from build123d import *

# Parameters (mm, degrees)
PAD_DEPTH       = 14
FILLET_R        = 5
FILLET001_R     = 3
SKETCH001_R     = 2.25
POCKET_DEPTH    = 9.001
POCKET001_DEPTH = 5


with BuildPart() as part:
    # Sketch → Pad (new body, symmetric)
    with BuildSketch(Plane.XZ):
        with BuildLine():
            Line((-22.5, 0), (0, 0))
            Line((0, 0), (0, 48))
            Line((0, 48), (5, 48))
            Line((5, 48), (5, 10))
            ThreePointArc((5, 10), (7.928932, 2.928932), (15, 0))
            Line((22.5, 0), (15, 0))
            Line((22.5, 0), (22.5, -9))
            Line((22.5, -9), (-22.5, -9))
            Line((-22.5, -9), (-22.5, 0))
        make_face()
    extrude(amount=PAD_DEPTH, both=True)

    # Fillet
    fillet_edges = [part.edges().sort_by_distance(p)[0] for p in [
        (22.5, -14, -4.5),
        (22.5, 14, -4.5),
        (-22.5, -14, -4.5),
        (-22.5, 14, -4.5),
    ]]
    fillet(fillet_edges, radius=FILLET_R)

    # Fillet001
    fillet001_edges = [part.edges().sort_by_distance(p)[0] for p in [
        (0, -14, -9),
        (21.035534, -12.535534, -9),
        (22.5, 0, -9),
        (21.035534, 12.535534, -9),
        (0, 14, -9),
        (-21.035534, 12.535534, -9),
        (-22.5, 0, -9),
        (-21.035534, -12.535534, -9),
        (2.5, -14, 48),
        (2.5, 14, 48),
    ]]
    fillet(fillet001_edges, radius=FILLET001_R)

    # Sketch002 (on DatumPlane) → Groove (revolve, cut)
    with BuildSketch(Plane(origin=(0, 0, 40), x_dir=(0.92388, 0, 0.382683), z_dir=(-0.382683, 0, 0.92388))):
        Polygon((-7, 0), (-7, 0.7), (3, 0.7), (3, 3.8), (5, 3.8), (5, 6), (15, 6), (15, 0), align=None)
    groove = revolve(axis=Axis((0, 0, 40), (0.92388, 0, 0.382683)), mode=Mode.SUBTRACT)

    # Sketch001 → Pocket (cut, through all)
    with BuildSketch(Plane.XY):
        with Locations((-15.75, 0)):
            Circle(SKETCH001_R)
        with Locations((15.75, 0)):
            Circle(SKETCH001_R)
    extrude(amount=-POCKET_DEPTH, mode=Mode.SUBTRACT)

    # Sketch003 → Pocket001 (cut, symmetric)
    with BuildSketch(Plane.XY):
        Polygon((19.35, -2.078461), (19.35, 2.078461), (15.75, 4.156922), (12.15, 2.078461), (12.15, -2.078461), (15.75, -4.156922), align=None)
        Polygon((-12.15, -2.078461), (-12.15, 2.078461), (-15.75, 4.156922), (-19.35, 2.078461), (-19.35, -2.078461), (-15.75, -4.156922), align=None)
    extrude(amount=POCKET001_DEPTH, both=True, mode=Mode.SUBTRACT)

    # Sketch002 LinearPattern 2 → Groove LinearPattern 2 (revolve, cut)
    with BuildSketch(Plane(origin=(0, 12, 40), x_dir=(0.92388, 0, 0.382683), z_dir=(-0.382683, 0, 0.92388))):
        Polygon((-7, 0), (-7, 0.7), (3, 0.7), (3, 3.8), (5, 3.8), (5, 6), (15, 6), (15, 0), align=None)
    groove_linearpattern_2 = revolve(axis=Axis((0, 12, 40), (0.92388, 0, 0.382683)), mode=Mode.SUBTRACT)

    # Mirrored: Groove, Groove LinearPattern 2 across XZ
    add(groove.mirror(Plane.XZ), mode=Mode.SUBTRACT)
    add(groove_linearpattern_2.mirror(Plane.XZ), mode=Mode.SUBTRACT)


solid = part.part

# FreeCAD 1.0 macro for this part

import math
import FreeCAD as App
import Part
import Sketcher
Q = App.Units.Quantity


def edges_at(feature, points):
    """Names of the edges that pass closest to the given points."""
    edges = feature.Shape.Edges
    near = lambda p: min(range(len(edges)), key=lambda i: edges[i].distToShape(Part.Vertex(*p))[0])
    return sorted({f"Edge{near(p) + 1}" for p in points})


def add_polygon(sketch, points):
    """Adds a closed chain of lines whose ends are joined by coincident constraints."""
    first, n = sketch.GeometryCount, len(points)
    for a, b in zip(points, points[1:] + points[:1]):
        sketch.addGeometry(Part.LineSegment(App.Vector(*a, 0), App.Vector(*b, 0)), False)
    for i in range(n):
        sketch.addConstraint(Sketcher.Constraint("Coincident", first + i, 2, first + (i + 1) % n, 1))

doc = App.newDocument("Part")
params = doc.addObject("Spreadsheet::Sheet", "Params")
for row, (alias, value) in enumerate([
    ("sketch1_radius", "9.999999 mm"),
    ("sketch1_width", "45 mm"),
    ("sketch1_width2", "5 mm"),
    ("sketch1_height", "9 mm"),
    ("sketch1_height2", "38 mm"),
    ("pad1_length", "28 mm"),
    ("fillet_radius", "5 mm"),
    ("fillet2_radius", "3 mm"),
    ("sketch2_width", "22 mm"),
    ("sketch2_width2", "10 mm"),
    ("sketch2_height", "6 mm"),
    ("sketch2_height2", "0.7 mm"),
    ("sketch2_height3", "2.2 mm"),
    ("groove_angle", "360 deg"),
    ("sketch3_diameter", "4.5 mm"),
    ("pocket2_length", "10 mm"),
    ("sketch5_width", "22 mm"),
    ("sketch5_width2", "10 mm"),
    ("sketch5_height", "6 mm"),
    ("sketch5_height2", "0.7 mm"),
    ("sketch5_height3", "2.2 mm"),
    ("groove2_angle", "360 deg"),
], start=1):
    params.set(f"A{row}", alias)
    params.set(f"B{row}", "=" + value)
    params.setAlias(f"B{row}", alias)

body = doc.addObject("PartDesign::Body", "Body")

# Sketch on XZ plane
sketch1 = body.newObject("Sketcher::SketchObject", "Sketch")
sketch1.AttachmentSupport = (doc.getObject("XZ_Plane"), [""])
sketch1.MapMode = "FlatFace"
sketch1.addGeometry([
    Part.LineSegment(App.Vector(0, 0, 0), App.Vector(-22, 0, 0)),  # 0
    Part.LineSegment(App.Vector(-22, 0, 0), App.Vector(-22, -9, 0)),  # 1
    Part.LineSegment(App.Vector(-22, -9, 0), App.Vector(22, -9, 0)),  # 2
    Part.LineSegment(App.Vector(22, -9, 0), App.Vector(22, 0, 0)),  # 3
    Part.LineSegment(App.Vector(22, 0, 0), App.Vector(15, 0, 0)),  # 4
    Part.ArcOfCircle(Part.Circle(App.Vector(15, 10, 0), App.Vector(0, 0, 1), 10), math.radians(180), math.radians(270)),  # 5
    Part.LineSegment(App.Vector(5, 10, 0), App.Vector(5, 48, 0)),  # 6
    Part.LineSegment(App.Vector(5, 48, 0), App.Vector(0, 48, 0)),  # 7
    Part.LineSegment(App.Vector(0, 48, 0), App.Vector(0, 0, 0)),  # 8
], False)
sketch1.addConstraint([
    Sketcher.Constraint("Coincident", 0, 2, 1, 1),
    Sketcher.Constraint("Coincident", 1, 2, 2, 1),
    Sketcher.Constraint("Coincident", 2, 2, 3, 1),
    Sketcher.Constraint("Coincident", 3, 2, 4, 1),
    Sketcher.Constraint("Tangent", 4, 2, 5, 2),
    Sketcher.Constraint("Tangent", 5, 1, 6, 1),
    Sketcher.Constraint("Coincident", 6, 2, 7, 1),
    Sketcher.Constraint("Coincident", 7, 2, 8, 1),
    Sketcher.Constraint("Coincident", 8, 2, 0, 1),
    Sketcher.Constraint("Horizontal", 0),
    Sketcher.Constraint("Vertical", 1),
    Sketcher.Constraint("Horizontal", 2),
    Sketcher.Constraint("Vertical", 3),
    Sketcher.Constraint("Horizontal", 4),
    Sketcher.Constraint("Vertical", 6),
    Sketcher.Constraint("Horizontal", 7),
    Sketcher.Constraint("Vertical", 8),
    Sketcher.Constraint("Coincident", 8, 2, -1, 1),
    Sketcher.Constraint("Symmetric", 0, 2, 3, 2, -1, 1),
    Sketcher.Constraint("Radius", 5, Q("9.999999 mm")),
    Sketcher.Constraint("DistanceX", 2, 1, 2, 2, Q("45 mm")),
    Sketcher.Constraint("DistanceX", 7, 2, 7, 1, Q("5 mm")),
    Sketcher.Constraint("DistanceY", 1, 2, 1, 1, Q("9 mm")),
    Sketcher.Constraint("DistanceY", 6, 1, 6, 2, Q("38 mm")),
])
sketch1.setExpression("Constraints[19]", "Params.sketch1_radius")
sketch1.setExpression("Constraints[20]", "Params.sketch1_width")
sketch1.setExpression("Constraints[21]", "Params.sketch1_width2")
sketch1.setExpression("Constraints[22]", "Params.sketch1_height")
sketch1.setExpression("Constraints[23]", "Params.sketch1_height2")
pad1 = body.newObject("PartDesign::Pad", "Pad")
pad1.Profile = sketch1
pad1.setExpression("Length", "Params.pad1_length")
pad1.Midplane = True
doc.recompute()

fillet = body.newObject("PartDesign::Fillet", "Fillet")
fillet.Base = (pad1, edges_at(pad1, [
    (22.5, -14, -4.5),
    (22.5, 14, -4.5),
    (-22.5, -14, -4.5),
    (-22.5, 14, -4.5),
]))
fillet.setExpression("Radius", "Params.fillet_radius")
doc.recompute()

fillet2 = body.newObject("PartDesign::Fillet", "Fillet001")
fillet2.Base = (fillet, edges_at(fillet, [
    (0, -14, -9),
    (21.036, -12.536, -9),
    (22.5, 0, -9),
    (21.036, 12.536, -9),
    (0, 14, -9),
    (-21.036, 12.536, -9),
    (-22.5, 0, -9),
    (-21.036, -12.536, -9),
    (2.5, -14, 48),
    (2.5, 14, 48),
]))
fillet2.setExpression("Radius", "Params.fillet2_radius")

# Sketch on an angled plane
sketch2 = body.newObject("Sketcher::SketchObject", "Sketch001")
sketch2.Placement = App.Placement(App.Vector(0, 0, 40), App.Rotation(App.Vector(0.923879754, 0, 0.382682898), App.Vector(0, 1, 0), App.Vector(-0.382682898, 0, 0.923879754), "ZXY"))
add_polygon(sketch2, [(-7, 0.7), (-7, 0), (15, 0), (15, 6), (5, 6), (5, 3.8), (3, 3.8), (3, 0.7)])  # lines 0-7
sketch2.addConstraint([
    Sketcher.Constraint("Vertical", 0),
    Sketcher.Constraint("Horizontal", 1),
    Sketcher.Constraint("Vertical", 2),
    Sketcher.Constraint("Horizontal", 3),
    Sketcher.Constraint("Vertical", 4),
    Sketcher.Constraint("Horizontal", 5),
    Sketcher.Constraint("Vertical", 6),
    Sketcher.Constraint("Horizontal", 7),
    Sketcher.Constraint("PointOnObject", 0, 2, -1),
    Sketcher.Constraint("Equal", 3, 7),
    Sketcher.Constraint("DistanceX", 1, 1, 1, 2, Q("22 mm")),
    Sketcher.Constraint("DistanceX", 3, 2, 3, 1, Q("10 mm")),
    Sketcher.Constraint("DistanceY", 2, 1, 2, 2, Q("6 mm")),
    Sketcher.Constraint("DistanceY", 0, 2, 0, 1, Q("0.7 mm")),
    Sketcher.Constraint("DistanceY", 4, 2, 4, 1, Q("2.2 mm")),
    Sketcher.Constraint("DistanceX", 0, 2, -1, 1, Q("7 mm")),
])
sketch2.setExpression("Constraints[18]", "Params.sketch2_width")
sketch2.setExpression("Constraints[19]", "Params.sketch2_width2")
sketch2.setExpression("Constraints[20]", "Params.sketch2_height")
sketch2.setExpression("Constraints[21]", "Params.sketch2_height2")
sketch2.setExpression("Constraints[22]", "Params.sketch2_height3")
groove = body.newObject("PartDesign::Groove", "Groove")
groove.Profile = sketch2
groove.ReferenceAxis = (sketch2, ["H_Axis"])
groove.setExpression("Angle", "Params.groove_angle")

# Sketch on XY plane
sketch3 = body.newObject("Sketcher::SketchObject", "Sketch002")
sketch3.AttachmentSupport = (doc.getObject("XY_Plane"), [""])
sketch3.MapMode = "FlatFace"
sketch3.addGeometry([
    Part.Circle(App.Vector(-15.8, 0, 0), App.Vector(0, 0, 1), 2.2),
    Part.Circle(App.Vector(15.8, 0, 0), App.Vector(0, 0, 1), 2.2),
], False)
sketch3.addConstraint([
    Sketcher.Constraint("Equal", 0, 1),
    Sketcher.Constraint("Symmetric", 0, 3, 1, 3, -1, 1),
    Sketcher.Constraint("PointOnObject", 0, 3, -1),
    Sketcher.Constraint("Diameter", 0, Q("4.5 mm")),
    Sketcher.Constraint("DistanceX", 0, 3, 1, 3, Q("31.5 mm")),
])
sketch3.setExpression("Constraints[3]", "Params.sketch3_diameter")
pocket1 = body.newObject("PartDesign::Pocket", "Pocket")
pocket1.Profile = sketch3
pocket1.Type = "ThroughAll"

# Sketch on XY plane
sketch4 = body.newObject("Sketcher::SketchObject", "Sketch003")
sketch4.AttachmentSupport = (doc.getObject("XY_Plane"), [""])
sketch4.MapMode = "FlatFace"
add_polygon(sketch4, [(19.4, -2.1), (19.4, 2.1), (15.8, 4.2), (12.2, 2.1), (12.2, -2.1), (15.8, -4.2)])  # lines 0-5
add_polygon(sketch4, [(-12.2, -2.1), (-12.2, 2.1), (-15.8, 4.2), (-19.4, 2.1), (-19.4, -2.1), (-15.8, -4.2)])  # lines 6-11
sketch4.addConstraint([
    Sketcher.Constraint("Vertical", 0),
    Sketcher.Constraint("Vertical", 3),
    Sketcher.Constraint("Vertical", 6),
    Sketcher.Constraint("Vertical", 9),
    Sketcher.Constraint("Symmetric", 3, 2, 6, 2, -1, 1),
    Sketcher.Constraint("Symmetric", 4, 2, 7, 2, -1, 1),
    Sketcher.Constraint("Symmetric", 5, 2, 8, 2, -1, 1),
    Sketcher.Constraint("Symmetric", 1, 2, 10, 2, -1, 1),
    Sketcher.Constraint("Symmetric", 1, 2, 7, 2, -2),
    Sketcher.Constraint("Parallel", 1, 4),
    Sketcher.Constraint("Parallel", 2, 5),
    Sketcher.Constraint("Parallel", 7, 10),
    Sketcher.Constraint("Parallel", 8, 11),
    Sketcher.Constraint("Horizontal", 0, 2, 2, 2),
    Sketcher.Constraint("Horizontal", 3, 2, 5, 2),
    Sketcher.Constraint("Angle", 1, Q("150 deg")),
    Sketcher.Constraint("DistanceX", 1, 2, 0, 2, Q("3.6 mm")),
    Sketcher.Constraint("DistanceX", 6, 2, 2, 2, Q("24.3 mm")),
    Sketcher.Constraint("DistanceY", 0, 1, 0, 2, Q("4.156922 mm")),
])
pocket2 = body.newObject("PartDesign::Pocket", "Pocket001")
pocket2.Profile = sketch4
pocket2.setExpression("Length", "Params.pocket2_length")
pocket2.Midplane = True

# Sketch on an angled plane
sketch5 = body.newObject("Sketcher::SketchObject", "Sketch004")
sketch5.Placement = App.Placement(App.Vector(0, 12, 40), App.Rotation(App.Vector(0.923879754, 0, 0.382682898), App.Vector(0, 1, 0), App.Vector(-0.382682898, 0, 0.923879754), "ZXY"))
add_polygon(sketch5, [(-7, 0.7), (-7, 0), (15, 0), (15, 6), (5, 6), (5, 3.8), (3, 3.8), (3, 0.7)])  # lines 0-7
sketch5.addConstraint([
    Sketcher.Constraint("Vertical", 0),
    Sketcher.Constraint("Horizontal", 1),
    Sketcher.Constraint("Vertical", 2),
    Sketcher.Constraint("Horizontal", 3),
    Sketcher.Constraint("Vertical", 4),
    Sketcher.Constraint("Horizontal", 5),
    Sketcher.Constraint("Vertical", 6),
    Sketcher.Constraint("Horizontal", 7),
    Sketcher.Constraint("PointOnObject", 0, 2, -1),
    Sketcher.Constraint("Equal", 3, 7),
    Sketcher.Constraint("DistanceX", 1, 1, 1, 2, Q("22 mm")),
    Sketcher.Constraint("DistanceX", 3, 2, 3, 1, Q("10 mm")),
    Sketcher.Constraint("DistanceY", 2, 1, 2, 2, Q("6 mm")),
    Sketcher.Constraint("DistanceY", 0, 2, 0, 1, Q("0.7 mm")),
    Sketcher.Constraint("DistanceY", 4, 2, 4, 1, Q("2.2 mm")),
    Sketcher.Constraint("DistanceX", 0, 2, -1, 1, Q("7 mm")),
])
sketch5.setExpression("Constraints[18]", "Params.sketch5_width")
sketch5.setExpression("Constraints[19]", "Params.sketch5_width2")
sketch5.setExpression("Constraints[20]", "Params.sketch5_height")
sketch5.setExpression("Constraints[21]", "Params.sketch5_height2")
sketch5.setExpression("Constraints[22]", "Params.sketch5_height3")
groove2 = body.newObject("PartDesign::Groove", "Groove001")
groove2.Profile = sketch5
groove2.ReferenceAxis = (sketch5, ["H_Axis"])
groove2.setExpression("Angle", "Params.groove2_angle")
doc.recompute()

mirrored = body.newObject("PartDesign::Mirrored", "Mirrored")
mirrored.Originals = [groove, groove2]
mirrored.MirrorPlane = (doc.getObject("XZ_Plane"), [""])
body.Tip = mirrored

doc.recompute()
